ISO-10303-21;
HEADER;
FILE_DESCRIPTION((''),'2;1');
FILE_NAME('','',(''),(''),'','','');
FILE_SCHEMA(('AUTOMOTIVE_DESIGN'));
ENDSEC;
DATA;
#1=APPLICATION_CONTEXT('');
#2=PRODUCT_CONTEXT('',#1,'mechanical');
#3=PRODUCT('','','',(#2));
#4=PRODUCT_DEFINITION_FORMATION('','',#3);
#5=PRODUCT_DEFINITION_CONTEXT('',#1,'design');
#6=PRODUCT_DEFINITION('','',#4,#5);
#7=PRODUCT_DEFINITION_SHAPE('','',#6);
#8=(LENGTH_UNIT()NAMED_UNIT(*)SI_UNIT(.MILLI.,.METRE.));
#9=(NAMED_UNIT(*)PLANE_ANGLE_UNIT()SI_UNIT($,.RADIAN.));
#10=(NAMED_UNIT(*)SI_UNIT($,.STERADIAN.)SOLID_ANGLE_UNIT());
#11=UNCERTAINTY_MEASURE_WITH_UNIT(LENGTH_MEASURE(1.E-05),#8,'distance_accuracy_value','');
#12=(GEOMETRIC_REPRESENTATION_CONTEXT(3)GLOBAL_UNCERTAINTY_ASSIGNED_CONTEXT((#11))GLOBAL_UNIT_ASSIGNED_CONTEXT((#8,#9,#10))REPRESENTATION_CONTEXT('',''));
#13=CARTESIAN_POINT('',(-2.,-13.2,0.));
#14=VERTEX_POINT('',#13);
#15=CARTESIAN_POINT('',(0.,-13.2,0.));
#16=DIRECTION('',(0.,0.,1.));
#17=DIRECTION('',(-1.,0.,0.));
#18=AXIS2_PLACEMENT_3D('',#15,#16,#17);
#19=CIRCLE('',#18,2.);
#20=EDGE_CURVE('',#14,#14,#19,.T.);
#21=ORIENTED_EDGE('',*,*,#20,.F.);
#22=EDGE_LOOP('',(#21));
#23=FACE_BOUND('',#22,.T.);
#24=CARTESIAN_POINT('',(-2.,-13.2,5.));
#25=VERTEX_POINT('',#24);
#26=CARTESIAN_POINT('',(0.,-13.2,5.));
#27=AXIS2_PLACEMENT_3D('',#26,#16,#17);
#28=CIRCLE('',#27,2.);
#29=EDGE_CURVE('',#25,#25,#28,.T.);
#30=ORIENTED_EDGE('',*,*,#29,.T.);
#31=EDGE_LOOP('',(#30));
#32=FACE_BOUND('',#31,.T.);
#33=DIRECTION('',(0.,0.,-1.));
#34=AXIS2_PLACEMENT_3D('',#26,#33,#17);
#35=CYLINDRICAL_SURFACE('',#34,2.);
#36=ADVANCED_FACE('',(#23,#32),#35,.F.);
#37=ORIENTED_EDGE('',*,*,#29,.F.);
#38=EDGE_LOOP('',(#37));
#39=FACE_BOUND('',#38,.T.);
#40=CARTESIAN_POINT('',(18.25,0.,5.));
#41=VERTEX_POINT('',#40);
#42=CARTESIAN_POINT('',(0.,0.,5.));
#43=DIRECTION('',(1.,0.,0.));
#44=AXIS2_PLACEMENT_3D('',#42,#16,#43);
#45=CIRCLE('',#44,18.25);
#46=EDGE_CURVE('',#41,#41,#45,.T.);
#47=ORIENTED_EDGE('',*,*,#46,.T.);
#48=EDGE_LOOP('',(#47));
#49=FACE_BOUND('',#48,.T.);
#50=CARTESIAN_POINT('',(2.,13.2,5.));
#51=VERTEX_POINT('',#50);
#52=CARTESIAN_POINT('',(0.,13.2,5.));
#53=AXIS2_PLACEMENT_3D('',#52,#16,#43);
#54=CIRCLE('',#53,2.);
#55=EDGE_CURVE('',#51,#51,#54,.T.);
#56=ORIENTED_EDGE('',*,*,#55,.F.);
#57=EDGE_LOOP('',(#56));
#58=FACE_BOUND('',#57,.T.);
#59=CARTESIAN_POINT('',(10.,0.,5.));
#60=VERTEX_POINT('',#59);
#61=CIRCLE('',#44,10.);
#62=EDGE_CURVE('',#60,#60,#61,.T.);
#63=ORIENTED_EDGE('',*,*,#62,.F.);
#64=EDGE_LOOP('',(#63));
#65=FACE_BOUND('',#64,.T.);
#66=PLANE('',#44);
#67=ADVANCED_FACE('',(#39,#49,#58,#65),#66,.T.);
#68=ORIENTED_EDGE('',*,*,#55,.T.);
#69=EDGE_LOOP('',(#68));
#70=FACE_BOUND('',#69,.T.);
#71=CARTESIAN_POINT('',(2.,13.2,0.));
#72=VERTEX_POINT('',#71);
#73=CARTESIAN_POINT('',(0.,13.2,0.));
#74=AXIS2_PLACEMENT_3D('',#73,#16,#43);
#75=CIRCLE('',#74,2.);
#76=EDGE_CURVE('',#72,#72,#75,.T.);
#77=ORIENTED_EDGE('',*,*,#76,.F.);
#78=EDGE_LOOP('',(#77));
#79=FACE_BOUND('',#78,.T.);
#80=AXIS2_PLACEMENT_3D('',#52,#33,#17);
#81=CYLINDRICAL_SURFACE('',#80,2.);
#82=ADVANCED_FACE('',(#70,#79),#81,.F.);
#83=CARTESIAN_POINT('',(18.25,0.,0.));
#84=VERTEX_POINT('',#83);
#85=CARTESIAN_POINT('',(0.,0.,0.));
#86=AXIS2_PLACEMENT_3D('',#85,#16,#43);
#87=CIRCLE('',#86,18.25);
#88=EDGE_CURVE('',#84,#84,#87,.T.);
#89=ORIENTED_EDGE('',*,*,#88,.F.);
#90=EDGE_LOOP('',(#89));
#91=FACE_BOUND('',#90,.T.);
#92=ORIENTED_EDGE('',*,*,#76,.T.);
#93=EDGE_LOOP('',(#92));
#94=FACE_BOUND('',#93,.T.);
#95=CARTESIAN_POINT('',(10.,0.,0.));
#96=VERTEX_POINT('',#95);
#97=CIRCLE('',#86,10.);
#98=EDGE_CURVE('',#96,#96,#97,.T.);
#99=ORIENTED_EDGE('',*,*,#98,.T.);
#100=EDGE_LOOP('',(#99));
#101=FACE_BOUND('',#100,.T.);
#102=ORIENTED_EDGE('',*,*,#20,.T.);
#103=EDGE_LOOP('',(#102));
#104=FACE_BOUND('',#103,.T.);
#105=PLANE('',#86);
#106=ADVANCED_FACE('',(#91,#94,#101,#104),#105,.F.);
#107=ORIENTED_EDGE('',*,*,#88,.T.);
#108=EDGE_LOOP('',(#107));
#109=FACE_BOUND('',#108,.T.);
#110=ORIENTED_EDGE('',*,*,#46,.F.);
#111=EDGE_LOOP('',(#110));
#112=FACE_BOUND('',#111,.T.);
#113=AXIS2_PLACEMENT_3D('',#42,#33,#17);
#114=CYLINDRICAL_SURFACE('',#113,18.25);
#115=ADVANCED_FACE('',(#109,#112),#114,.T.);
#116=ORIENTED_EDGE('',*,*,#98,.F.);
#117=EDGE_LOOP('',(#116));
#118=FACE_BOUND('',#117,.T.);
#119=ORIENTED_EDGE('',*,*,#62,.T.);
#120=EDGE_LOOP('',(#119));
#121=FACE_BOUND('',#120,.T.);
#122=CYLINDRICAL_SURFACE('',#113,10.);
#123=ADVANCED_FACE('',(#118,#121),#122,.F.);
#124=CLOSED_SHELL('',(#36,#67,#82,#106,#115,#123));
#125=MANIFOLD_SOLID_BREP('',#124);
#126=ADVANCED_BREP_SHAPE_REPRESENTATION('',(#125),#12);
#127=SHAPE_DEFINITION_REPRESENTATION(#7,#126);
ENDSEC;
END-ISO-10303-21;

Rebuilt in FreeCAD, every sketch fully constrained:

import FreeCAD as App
import Part
import Sketcher
from FreeCAD import Vector
Q = App.Units.Quantity

doc = App.newDocument("Part")
params = doc.addObject("Spreadsheet::Sheet", "Params")
for row, (alias, value) in enumerate([
    ("sketch1_diameter", "4 mm"),
    ("sketch1_diameter2", "20 mm"),
    ("sketch1_diameter3", "36.5 mm"),
    ("pad1_length", "5 mm"),
], start=1):
    params.set(f"A{row}", alias)
    params.set(f"B{row}", "=" + value)
    params.setAlias(f"B{row}", alias)

body = doc.addObject("PartDesign::Body", "Body")

# Sketch on XY plane
sketch1 = doc.addObject("Sketcher::SketchObject", "Sketch")
body.addObject(sketch1)
sketch1.AttachmentSupport = (doc.XY_Plane, [""])
sketch1.MapMode = "FlatFace"
sketch1.addGeometry(Part.Circle(Vector(0, 0, 0), Vector(0, 0, 1), 18.2), False)
sketch1.addGeometry(Part.Circle(Vector(0, -13.2, 0), Vector(0, 0, 1), 2), False)
sketch1.addGeometry(Part.Circle(Vector(0, 0, 0), Vector(0, 0, 1), 10), False)
sketch1.addGeometry(Part.Circle(Vector(0, 13.2, 0), Vector(0, 0, 1), 2), False)
sketch1.addConstraint(Sketcher.Constraint("Coincident", 0, 3, -1, 1))
sketch1.addConstraint(Sketcher.Constraint("Coincident", 2, 3, -1, 1))
sketch1.addConstraint(Sketcher.Constraint("Equal", 1, 3))
sketch1.addConstraint(Sketcher.Constraint("Symmetric", 1, 3, 3, 3, -1, 1))
sketch1.addConstraint(Sketcher.Constraint("PointOnObject", 1, 3, -2))
sketch1.addConstraint(Sketcher.Constraint("Diameter", 1, Q("4 mm")))
sketch1.addConstraint(Sketcher.Constraint("Diameter", 2, Q("20 mm")))
sketch1.addConstraint(Sketcher.Constraint("Diameter", 0, Q("36.5 mm")))
sketch1.addConstraint(Sketcher.Constraint("DistanceY", 1, 3, -1, 1, Q("13.2 mm")))
sketch1.setExpression("Constraints[5]", "Params.sketch1_diameter")
sketch1.setExpression("Constraints[6]", "Params.sketch1_diameter2")
sketch1.setExpression("Constraints[7]", "Params.sketch1_diameter3")
pad1 = doc.addObject("PartDesign::Pad", "Pad")
body.addObject(pad1)
pad1.Profile = sketch1
pad1.setExpression("Length", "Params.pad1_length")

doc.recompute()
